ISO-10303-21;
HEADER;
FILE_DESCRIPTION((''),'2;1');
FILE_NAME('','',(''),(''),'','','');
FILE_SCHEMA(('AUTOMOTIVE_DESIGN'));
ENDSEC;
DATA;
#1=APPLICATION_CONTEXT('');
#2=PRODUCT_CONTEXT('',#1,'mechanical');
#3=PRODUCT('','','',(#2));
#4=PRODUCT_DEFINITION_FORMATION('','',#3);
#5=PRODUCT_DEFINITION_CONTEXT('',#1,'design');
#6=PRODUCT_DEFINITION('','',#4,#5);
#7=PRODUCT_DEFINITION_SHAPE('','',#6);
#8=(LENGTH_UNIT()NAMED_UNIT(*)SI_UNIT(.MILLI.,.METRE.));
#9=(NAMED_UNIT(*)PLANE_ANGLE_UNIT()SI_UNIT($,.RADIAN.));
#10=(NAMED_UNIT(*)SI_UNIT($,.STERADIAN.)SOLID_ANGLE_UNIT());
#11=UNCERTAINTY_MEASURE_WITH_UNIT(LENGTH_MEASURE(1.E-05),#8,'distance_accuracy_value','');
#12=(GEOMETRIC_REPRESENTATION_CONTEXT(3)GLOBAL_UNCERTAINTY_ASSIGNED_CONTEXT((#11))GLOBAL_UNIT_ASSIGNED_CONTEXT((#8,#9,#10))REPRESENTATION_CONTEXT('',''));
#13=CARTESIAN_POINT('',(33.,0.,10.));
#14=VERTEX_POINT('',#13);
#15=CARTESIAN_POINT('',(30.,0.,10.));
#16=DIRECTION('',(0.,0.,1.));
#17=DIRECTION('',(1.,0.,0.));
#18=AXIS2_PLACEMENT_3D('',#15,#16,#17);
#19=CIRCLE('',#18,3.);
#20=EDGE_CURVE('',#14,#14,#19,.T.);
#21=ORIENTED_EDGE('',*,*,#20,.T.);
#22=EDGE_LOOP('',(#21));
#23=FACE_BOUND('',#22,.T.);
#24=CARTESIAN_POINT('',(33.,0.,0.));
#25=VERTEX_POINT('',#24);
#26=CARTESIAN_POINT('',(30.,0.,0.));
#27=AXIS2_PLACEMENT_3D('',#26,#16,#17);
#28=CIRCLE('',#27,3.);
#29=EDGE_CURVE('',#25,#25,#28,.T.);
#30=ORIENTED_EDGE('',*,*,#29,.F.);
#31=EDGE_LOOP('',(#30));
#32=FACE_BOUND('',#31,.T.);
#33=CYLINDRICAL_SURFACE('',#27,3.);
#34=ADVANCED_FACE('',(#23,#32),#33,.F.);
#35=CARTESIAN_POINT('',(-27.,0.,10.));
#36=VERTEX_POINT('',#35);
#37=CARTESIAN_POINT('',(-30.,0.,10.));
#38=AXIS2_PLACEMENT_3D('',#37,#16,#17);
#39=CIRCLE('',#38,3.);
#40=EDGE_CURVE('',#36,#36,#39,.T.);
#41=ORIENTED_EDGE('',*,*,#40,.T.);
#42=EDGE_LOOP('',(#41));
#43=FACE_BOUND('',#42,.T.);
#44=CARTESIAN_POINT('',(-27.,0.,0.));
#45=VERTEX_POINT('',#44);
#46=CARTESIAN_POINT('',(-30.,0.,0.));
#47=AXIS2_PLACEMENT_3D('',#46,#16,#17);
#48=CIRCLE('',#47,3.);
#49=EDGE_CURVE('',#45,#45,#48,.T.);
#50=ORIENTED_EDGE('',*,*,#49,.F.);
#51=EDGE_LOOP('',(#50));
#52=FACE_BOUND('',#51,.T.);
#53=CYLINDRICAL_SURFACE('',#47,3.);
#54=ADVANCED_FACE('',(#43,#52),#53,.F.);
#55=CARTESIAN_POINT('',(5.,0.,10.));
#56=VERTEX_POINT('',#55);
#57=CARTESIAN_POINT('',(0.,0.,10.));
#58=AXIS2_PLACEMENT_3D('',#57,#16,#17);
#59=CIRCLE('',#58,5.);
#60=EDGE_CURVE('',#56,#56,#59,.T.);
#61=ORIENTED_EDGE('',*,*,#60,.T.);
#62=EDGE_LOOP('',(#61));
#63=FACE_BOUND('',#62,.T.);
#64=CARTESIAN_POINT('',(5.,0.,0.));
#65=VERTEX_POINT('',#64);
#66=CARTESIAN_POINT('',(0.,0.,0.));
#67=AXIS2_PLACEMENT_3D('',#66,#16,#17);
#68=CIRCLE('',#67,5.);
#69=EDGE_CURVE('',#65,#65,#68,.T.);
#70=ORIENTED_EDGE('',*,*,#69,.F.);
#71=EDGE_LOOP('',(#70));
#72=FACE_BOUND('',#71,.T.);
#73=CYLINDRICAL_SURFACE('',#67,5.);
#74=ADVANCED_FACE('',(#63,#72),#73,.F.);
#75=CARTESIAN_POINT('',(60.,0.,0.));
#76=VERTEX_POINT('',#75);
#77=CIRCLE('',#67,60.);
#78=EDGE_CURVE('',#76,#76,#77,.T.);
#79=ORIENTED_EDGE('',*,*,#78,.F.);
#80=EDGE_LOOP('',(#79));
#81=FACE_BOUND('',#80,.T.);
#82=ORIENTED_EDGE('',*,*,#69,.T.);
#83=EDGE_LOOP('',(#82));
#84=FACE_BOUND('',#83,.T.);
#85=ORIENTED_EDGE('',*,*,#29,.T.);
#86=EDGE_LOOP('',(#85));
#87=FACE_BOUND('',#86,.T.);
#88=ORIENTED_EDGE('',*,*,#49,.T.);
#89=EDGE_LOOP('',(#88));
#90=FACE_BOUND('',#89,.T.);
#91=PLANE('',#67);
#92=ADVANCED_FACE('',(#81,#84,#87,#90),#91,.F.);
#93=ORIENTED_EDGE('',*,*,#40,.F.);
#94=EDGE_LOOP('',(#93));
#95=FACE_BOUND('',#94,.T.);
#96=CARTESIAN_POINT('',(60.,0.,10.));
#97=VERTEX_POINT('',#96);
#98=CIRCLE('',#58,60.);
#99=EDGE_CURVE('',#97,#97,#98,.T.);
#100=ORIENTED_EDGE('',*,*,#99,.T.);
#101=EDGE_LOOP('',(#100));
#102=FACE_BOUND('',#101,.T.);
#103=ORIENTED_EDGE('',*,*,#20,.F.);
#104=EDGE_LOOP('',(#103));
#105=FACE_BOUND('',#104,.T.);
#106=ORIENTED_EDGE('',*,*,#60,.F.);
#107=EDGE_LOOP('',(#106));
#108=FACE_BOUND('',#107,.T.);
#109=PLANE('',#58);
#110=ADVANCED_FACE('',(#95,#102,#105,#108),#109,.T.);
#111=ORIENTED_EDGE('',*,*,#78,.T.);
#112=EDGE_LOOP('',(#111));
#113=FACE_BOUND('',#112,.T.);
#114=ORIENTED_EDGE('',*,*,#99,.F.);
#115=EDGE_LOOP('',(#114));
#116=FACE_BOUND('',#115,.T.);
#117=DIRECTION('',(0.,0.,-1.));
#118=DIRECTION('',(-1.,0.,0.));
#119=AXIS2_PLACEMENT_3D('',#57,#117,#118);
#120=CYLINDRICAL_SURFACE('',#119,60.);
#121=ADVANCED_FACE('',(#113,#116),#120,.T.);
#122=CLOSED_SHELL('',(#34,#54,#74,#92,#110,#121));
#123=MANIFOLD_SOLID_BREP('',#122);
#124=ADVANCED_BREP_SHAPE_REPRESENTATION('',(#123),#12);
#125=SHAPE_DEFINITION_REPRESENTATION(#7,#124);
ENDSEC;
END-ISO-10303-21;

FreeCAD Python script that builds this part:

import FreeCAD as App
import Part
import Sketcher
from FreeCAD import Vector
Q = App.Units.Quantity

doc = App.newDocument("Part")
body = doc.addObject("PartDesign::Body", "Body")

sketch1 = doc.addObject("Sketcher::SketchObject", "Sketch")
body.addObject(sketch1)
sketch1.AttachmentSupport = (doc.XY_Plane, [""])
sketch1.MapMode = "FlatFace"
sketch1.addGeometry(Part.Circle(Vector(0, 0, 0), Vector(0, 0, 1), 60), False)
sketch1.addConstraint(Sketcher.Constraint("Coincident", 0, 3, -1, 1))
sketch1.addConstraint(Sketcher.Constraint("Diameter", 0, Q("120 mm")))
pad1 = doc.addObject("PartDesign::Pad", "Pad")
body.addObject(pad1)
pad1.Profile = sketch1
pad1.Length = 10

sketch2 = doc.addObject("Sketcher::SketchObject", "Sketch001")
body.addObject(sketch2)
sketch2.AttachmentSupport = (doc.XY_Plane, [""])
sketch2.MapMode = "FlatFace"
sketch2.AttachmentOffset = App.Placement(Vector(0, 0, 10), App.Rotation())
sketch2.addGeometry(Part.Circle(Vector(0, 0, 0), Vector(0, 0, 1), 5), False)
sketch2.addConstraint(Sketcher.Constraint("Coincident", 0, 3, -1, 1))
sketch2.addConstraint(Sketcher.Constraint("Diameter", 0, Q("10 mm")))
pocket1 = doc.addObject("PartDesign::Pocket", "Pocket")
body.addObject(pocket1)
pocket1.Profile = sketch2
pocket1.Length = 10

sketch3 = doc.addObject("Sketcher::SketchObject", "Sketch002")
body.addObject(sketch3)
sketch3.AttachmentSupport = (doc.XY_Plane, [""])
sketch3.MapMode = "FlatFace"
sketch3.AttachmentOffset = App.Placement(Vector(0, 0, 10), App.Rotation())
sketch3.addGeometry(Part.Circle(Vector(-30, 0, 0), Vector(0, 0, 1), 3), False)
sketch3.addGeometry(Part.Circle(Vector(30, 0, 0), Vector(0, 0, 1), 3), False)
sketch3.addConstraint(Sketcher.Constraint("Equal", 0, 1))
sketch3.addConstraint(Sketcher.Constraint("Symmetric", 0, 3, 1, 3, -1, 1))
sketch3.addConstraint(Sketcher.Constraint("PointOnObject", 0, 3, -1))
sketch3.addConstraint(Sketcher.Constraint("Diameter", 0, Q("6 mm")))
sketch3.addConstraint(Sketcher.Constraint("DistanceX", 0, 3, -1, 1, Q("30 mm")))
pocket2 = doc.addObject("PartDesign::Pocket", "Pocket001")
body.addObject(pocket2)
pocket2.Profile = sketch3
pocket2.Length = 10

doc.recompute()
